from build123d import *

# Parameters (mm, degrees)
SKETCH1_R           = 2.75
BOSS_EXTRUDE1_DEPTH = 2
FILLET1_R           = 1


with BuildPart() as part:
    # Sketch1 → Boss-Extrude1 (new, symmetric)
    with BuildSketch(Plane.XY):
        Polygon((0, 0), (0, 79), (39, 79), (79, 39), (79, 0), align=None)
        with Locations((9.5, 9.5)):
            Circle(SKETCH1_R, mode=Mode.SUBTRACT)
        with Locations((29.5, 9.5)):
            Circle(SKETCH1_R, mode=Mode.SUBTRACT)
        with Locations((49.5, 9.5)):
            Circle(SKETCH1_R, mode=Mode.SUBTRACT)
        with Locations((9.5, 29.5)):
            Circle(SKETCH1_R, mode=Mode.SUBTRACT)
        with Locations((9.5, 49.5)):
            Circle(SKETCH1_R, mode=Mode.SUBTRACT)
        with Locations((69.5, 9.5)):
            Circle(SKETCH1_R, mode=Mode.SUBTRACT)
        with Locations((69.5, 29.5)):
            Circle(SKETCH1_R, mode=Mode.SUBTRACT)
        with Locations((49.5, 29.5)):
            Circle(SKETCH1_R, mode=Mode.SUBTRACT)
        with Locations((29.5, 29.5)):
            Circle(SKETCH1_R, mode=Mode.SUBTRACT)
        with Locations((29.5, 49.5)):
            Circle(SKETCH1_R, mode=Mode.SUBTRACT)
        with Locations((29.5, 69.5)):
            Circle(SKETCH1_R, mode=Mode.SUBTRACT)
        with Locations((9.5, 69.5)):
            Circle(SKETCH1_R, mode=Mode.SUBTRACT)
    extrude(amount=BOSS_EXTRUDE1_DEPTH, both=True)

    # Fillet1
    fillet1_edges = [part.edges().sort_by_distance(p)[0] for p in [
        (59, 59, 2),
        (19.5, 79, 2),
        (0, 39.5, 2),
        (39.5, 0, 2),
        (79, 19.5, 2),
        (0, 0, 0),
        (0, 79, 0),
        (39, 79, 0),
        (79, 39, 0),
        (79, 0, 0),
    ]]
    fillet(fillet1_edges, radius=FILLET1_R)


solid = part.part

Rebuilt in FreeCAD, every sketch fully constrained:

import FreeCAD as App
import Part
import Sketcher

V = App.Vector
Q = App.Units.Quantity


def edges_at(feature, points):
    """Names of the edges that pass closest to the given points."""
    edges = feature.Shape.Edges
    near = lambda p: min(range(len(edges)), key=lambda i: edges[i].distToShape(Part.Vertex(*p))[0])
    return sorted({f"Edge{near(p) + 1}" for p in points})

doc = App.newDocument("Part")
params = doc.addObject("Spreadsheet::Sheet", "Params")
for row, (alias, value) in enumerate([
    ("sketch1_diameter", "5.5 mm"),
    ("sketch1_width", "79 mm"),
    ("sketch1_width2", "39 mm"),
    ("pad1_length", "4 mm"),
    ("fillet_radius", "1 mm"),
], start=1):
    params.set(f"A{row}", alias)
    params.set(f"B{row}", "=" + value)
    params.setAlias(f"B{row}", alias)

body = doc.addObject("PartDesign::Body", "Body")

sketch1 = doc.addObject("Sketcher::SketchObject", "Sketch")
body.addObject(sketch1)
sketch1.AttachmentSupport = (doc.XY_Plane, [""])
sketch1.MapMode = "FlatFace"
sketch1.addGeometry([
    Part.LineSegment(V(0, 79, 0), V(0, 0, 0)),
    Part.LineSegment(V(0, 0, 0), V(79, 0, 0)),
    Part.LineSegment(V(79, 0, 0), V(79, 39, 0)),
    Part.LineSegment(V(79, 39, 0), V(39, 79, 0)),
    Part.LineSegment(V(39, 79, 0), V(0, 79, 0)),
    Part.Circle(V(69.5, 9.5, 0), V(0, 0, 1), 2.8),
    Part.Circle(V(49.5, 9.5, 0), V(0, 0, 1), 2.8),
    Part.Circle(V(69.5, 29.5, 0), V(0, 0, 1), 2.8),
    Part.Circle(V(49.5, 29.5, 0), V(0, 0, 1), 2.8),
    Part.Circle(V(29.5, 9.5, 0), V(0, 0, 1), 2.8),
    Part.Circle(V(9.5, 9.5, 0), V(0, 0, 1), 2.8),
    Part.Circle(V(29.5, 29.5, 0), V(0, 0, 1), 2.8),
    Part.Circle(V(9.5, 29.5, 0), V(0, 0, 1), 2.8),
    Part.Circle(V(29.5, 49.5, 0), V(0, 0, 1), 2.8),
    Part.Circle(V(9.5, 49.5, 0), V(0, 0, 1), 2.8),
    Part.Circle(V(29.5, 69.5, 0), V(0, 0, 1), 2.8),
    Part.Circle(V(9.5, 69.5, 0), V(0, 0, 1), 2.8),
], False)
sketch1.addConstraint([
    Sketcher.Constraint("Coincident", 0, 2, 1, 1),
    Sketcher.Constraint("Coincident", 1, 2, 2, 1),
    Sketcher.Constraint("Coincident", 2, 2, 3, 1),
    Sketcher.Constraint("Coincident", 3, 2, 4, 1),
    Sketcher.Constraint("Coincident", 4, 2, 0, 1),
    Sketcher.Constraint("Vertical", 0),
    Sketcher.Constraint("Horizontal", 1),
    Sketcher.Constraint("Vertical", 2),
    Sketcher.Constraint("Horizontal", 4),
    Sketcher.Constraint("Coincident", 0, 2, -1, 1),
    Sketcher.Constraint("Equal", 5, 6),
    Sketcher.Constraint("Equal", 6, 7),
    Sketcher.Constraint("Equal", 7, 8),
    Sketcher.Constraint("Equal", 8, 9),
    Sketcher.Constraint("Equal", 9, 10),
    Sketcher.Constraint("Equal", 10, 11),
    Sketcher.Constraint("Equal", 11, 12),
    Sketcher.Constraint("Equal", 12, 13),
    Sketcher.Constraint("Equal", 13, 14),
    Sketcher.Constraint("Equal", 14, 15),
    Sketcher.Constraint("Equal", 15, 16),
    Sketcher.Constraint("Horizontal", 5, 3, 6, 3),
    Sketcher.Constraint("Horizontal", 7, 3, 8, 3),
    Sketcher.Constraint("Horizontal", 6, 3, 9, 3),
    Sketcher.Constraint("Horizontal", 9, 3, 10, 3),
    Sketcher.Constraint("Horizontal", 8, 3, 11, 3),
    Sketcher.Constraint("Horizontal", 11, 3, 12, 3),
    Sketcher.Constraint("Horizontal", 13, 3, 14, 3),
    Sketcher.Constraint("Horizontal", 15, 3, 16, 3),
    Sketcher.Constraint("Vertical", 5, 3, 7, 3),
    Sketcher.Constraint("Vertical", 6, 3, 8, 3),
    Sketcher.Constraint("Vertical", 9, 3, 11, 3),
    Sketcher.Constraint("Vertical", 10, 3, 12, 3),
    Sketcher.Constraint("Vertical", 11, 3, 13, 3),
    Sketcher.Constraint("Vertical", 12, 3, 14, 3),
    Sketcher.Constraint("Vertical", 13, 3, 15, 3),
    Sketcher.Constraint("Vertical", 14, 3, 16, 3),
    Sketcher.Constraint("Equal", 1, 0),
    Sketcher.Constraint("Equal", 4, 2),
    Sketcher.Constraint("Diameter", 5, Q("5.5 mm")),
    Sketcher.Constraint("DistanceX", 1, 1, 1, 2, Q("79 mm")),
    Sketcher.Constraint("DistanceX", 4, 2, 4, 1, Q("39 mm")),
    Sketcher.Constraint("DistanceX", 6, 3, 5, 3, Q("20 mm")),
    Sketcher.Constraint("DistanceY", 5, 3, 7, 3, Q("20 mm")),
    Sketcher.Constraint("DistanceX", 9, 3, 6, 3, Q("20 mm")),
    Sketcher.Constraint("DistanceX", 10, 3, 9, 3, Q("20 mm")),
    Sketcher.Constraint("DistanceY", 11, 3, 13, 3, Q("20 mm")),
    Sketcher.Constraint("DistanceY", 13, 3, 15, 3, Q("20 mm")),
    Sketcher.Constraint("DistanceX", -1, 1, 5, 3, Q("69.5 mm")),
    Sketcher.Constraint("DistanceY", -1, 1, 5, 3, Q("9.5 mm")),
])
sketch1.setExpression("Constraints[39]", "Params.sketch1_diameter")
sketch1.setExpression("Constraints[40]", "Params.sketch1_width")
sketch1.setExpression("Constraints[41]", "Params.sketch1_width2")
pad1 = doc.addObject("PartDesign::Pad", "Pad")
body.addObject(pad1)
pad1.Profile = sketch1
pad1.setExpression("Length", "Params.pad1_length")
pad1.Midplane = True
doc.recompute()

fillet = doc.addObject("PartDesign::Fillet", "Fillet")
body.addObject(fillet)
fillet.Base = (pad1, edges_at(pad1, [
    (59, 59, 2),
    (19.5, 79, 2),
    (0, 39.5, 2),
    (39.5, 0, 2),
    (79, 19.5, 2),
    (0, 0, 0),
    (0, 79, 0),
    (39, 79, 0),
    (79, 39, 0),
    (79, 0, 0),
]))
fillet.setExpression("Radius", "Params.fillet_radius")

doc.recompute()
